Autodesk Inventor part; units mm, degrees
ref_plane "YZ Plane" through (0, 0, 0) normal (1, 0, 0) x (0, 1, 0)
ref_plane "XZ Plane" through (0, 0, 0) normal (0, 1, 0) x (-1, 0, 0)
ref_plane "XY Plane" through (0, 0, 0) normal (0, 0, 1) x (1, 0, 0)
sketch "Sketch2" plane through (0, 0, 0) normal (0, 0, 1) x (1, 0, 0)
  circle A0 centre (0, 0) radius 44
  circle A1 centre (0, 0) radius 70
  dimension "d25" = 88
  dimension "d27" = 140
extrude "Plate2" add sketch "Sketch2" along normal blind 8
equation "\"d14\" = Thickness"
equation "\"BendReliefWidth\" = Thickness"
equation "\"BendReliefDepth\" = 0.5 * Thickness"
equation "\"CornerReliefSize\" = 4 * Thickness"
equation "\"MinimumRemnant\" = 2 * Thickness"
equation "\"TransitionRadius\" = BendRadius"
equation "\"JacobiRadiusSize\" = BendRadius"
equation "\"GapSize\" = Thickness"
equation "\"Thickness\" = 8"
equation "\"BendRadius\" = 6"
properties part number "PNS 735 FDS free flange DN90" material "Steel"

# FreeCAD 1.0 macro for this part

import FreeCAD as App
import Part
import Sketcher

V = App.Vector

doc = App.newDocument("Part")
body = doc.addObject("PartDesign::Body", "Body")

# Sketch on XY plane
sketch1 = body.newObject("Sketcher::SketchObject", "Sketch")
sketch1.AttachmentSupport = (doc.getObject("XY_Plane"), [""])
sketch1.MapMode = "FlatFace"
sketch1.addGeometry([
    Part.Circle(V(0, 0, 0), V(0, 0, 1), 70),
    Part.Circle(V(0, 0, 0), V(0, 0, 1), 44),
], False)
sketch1.addConstraint([
    Sketcher.Constraint("Coincident", 0, 3, -1, 1),
    Sketcher.Constraint("Coincident", 1, 3, -1, 1),
    Sketcher.Constraint("Diameter", 0, 140.0),
    Sketcher.Constraint("Diameter", 1, 88.0),
])
pad1 = body.newObject("PartDesign::Pad", "Pad")
pad1.Profile = sketch1
pad1.Length = 8

doc.recompute()
